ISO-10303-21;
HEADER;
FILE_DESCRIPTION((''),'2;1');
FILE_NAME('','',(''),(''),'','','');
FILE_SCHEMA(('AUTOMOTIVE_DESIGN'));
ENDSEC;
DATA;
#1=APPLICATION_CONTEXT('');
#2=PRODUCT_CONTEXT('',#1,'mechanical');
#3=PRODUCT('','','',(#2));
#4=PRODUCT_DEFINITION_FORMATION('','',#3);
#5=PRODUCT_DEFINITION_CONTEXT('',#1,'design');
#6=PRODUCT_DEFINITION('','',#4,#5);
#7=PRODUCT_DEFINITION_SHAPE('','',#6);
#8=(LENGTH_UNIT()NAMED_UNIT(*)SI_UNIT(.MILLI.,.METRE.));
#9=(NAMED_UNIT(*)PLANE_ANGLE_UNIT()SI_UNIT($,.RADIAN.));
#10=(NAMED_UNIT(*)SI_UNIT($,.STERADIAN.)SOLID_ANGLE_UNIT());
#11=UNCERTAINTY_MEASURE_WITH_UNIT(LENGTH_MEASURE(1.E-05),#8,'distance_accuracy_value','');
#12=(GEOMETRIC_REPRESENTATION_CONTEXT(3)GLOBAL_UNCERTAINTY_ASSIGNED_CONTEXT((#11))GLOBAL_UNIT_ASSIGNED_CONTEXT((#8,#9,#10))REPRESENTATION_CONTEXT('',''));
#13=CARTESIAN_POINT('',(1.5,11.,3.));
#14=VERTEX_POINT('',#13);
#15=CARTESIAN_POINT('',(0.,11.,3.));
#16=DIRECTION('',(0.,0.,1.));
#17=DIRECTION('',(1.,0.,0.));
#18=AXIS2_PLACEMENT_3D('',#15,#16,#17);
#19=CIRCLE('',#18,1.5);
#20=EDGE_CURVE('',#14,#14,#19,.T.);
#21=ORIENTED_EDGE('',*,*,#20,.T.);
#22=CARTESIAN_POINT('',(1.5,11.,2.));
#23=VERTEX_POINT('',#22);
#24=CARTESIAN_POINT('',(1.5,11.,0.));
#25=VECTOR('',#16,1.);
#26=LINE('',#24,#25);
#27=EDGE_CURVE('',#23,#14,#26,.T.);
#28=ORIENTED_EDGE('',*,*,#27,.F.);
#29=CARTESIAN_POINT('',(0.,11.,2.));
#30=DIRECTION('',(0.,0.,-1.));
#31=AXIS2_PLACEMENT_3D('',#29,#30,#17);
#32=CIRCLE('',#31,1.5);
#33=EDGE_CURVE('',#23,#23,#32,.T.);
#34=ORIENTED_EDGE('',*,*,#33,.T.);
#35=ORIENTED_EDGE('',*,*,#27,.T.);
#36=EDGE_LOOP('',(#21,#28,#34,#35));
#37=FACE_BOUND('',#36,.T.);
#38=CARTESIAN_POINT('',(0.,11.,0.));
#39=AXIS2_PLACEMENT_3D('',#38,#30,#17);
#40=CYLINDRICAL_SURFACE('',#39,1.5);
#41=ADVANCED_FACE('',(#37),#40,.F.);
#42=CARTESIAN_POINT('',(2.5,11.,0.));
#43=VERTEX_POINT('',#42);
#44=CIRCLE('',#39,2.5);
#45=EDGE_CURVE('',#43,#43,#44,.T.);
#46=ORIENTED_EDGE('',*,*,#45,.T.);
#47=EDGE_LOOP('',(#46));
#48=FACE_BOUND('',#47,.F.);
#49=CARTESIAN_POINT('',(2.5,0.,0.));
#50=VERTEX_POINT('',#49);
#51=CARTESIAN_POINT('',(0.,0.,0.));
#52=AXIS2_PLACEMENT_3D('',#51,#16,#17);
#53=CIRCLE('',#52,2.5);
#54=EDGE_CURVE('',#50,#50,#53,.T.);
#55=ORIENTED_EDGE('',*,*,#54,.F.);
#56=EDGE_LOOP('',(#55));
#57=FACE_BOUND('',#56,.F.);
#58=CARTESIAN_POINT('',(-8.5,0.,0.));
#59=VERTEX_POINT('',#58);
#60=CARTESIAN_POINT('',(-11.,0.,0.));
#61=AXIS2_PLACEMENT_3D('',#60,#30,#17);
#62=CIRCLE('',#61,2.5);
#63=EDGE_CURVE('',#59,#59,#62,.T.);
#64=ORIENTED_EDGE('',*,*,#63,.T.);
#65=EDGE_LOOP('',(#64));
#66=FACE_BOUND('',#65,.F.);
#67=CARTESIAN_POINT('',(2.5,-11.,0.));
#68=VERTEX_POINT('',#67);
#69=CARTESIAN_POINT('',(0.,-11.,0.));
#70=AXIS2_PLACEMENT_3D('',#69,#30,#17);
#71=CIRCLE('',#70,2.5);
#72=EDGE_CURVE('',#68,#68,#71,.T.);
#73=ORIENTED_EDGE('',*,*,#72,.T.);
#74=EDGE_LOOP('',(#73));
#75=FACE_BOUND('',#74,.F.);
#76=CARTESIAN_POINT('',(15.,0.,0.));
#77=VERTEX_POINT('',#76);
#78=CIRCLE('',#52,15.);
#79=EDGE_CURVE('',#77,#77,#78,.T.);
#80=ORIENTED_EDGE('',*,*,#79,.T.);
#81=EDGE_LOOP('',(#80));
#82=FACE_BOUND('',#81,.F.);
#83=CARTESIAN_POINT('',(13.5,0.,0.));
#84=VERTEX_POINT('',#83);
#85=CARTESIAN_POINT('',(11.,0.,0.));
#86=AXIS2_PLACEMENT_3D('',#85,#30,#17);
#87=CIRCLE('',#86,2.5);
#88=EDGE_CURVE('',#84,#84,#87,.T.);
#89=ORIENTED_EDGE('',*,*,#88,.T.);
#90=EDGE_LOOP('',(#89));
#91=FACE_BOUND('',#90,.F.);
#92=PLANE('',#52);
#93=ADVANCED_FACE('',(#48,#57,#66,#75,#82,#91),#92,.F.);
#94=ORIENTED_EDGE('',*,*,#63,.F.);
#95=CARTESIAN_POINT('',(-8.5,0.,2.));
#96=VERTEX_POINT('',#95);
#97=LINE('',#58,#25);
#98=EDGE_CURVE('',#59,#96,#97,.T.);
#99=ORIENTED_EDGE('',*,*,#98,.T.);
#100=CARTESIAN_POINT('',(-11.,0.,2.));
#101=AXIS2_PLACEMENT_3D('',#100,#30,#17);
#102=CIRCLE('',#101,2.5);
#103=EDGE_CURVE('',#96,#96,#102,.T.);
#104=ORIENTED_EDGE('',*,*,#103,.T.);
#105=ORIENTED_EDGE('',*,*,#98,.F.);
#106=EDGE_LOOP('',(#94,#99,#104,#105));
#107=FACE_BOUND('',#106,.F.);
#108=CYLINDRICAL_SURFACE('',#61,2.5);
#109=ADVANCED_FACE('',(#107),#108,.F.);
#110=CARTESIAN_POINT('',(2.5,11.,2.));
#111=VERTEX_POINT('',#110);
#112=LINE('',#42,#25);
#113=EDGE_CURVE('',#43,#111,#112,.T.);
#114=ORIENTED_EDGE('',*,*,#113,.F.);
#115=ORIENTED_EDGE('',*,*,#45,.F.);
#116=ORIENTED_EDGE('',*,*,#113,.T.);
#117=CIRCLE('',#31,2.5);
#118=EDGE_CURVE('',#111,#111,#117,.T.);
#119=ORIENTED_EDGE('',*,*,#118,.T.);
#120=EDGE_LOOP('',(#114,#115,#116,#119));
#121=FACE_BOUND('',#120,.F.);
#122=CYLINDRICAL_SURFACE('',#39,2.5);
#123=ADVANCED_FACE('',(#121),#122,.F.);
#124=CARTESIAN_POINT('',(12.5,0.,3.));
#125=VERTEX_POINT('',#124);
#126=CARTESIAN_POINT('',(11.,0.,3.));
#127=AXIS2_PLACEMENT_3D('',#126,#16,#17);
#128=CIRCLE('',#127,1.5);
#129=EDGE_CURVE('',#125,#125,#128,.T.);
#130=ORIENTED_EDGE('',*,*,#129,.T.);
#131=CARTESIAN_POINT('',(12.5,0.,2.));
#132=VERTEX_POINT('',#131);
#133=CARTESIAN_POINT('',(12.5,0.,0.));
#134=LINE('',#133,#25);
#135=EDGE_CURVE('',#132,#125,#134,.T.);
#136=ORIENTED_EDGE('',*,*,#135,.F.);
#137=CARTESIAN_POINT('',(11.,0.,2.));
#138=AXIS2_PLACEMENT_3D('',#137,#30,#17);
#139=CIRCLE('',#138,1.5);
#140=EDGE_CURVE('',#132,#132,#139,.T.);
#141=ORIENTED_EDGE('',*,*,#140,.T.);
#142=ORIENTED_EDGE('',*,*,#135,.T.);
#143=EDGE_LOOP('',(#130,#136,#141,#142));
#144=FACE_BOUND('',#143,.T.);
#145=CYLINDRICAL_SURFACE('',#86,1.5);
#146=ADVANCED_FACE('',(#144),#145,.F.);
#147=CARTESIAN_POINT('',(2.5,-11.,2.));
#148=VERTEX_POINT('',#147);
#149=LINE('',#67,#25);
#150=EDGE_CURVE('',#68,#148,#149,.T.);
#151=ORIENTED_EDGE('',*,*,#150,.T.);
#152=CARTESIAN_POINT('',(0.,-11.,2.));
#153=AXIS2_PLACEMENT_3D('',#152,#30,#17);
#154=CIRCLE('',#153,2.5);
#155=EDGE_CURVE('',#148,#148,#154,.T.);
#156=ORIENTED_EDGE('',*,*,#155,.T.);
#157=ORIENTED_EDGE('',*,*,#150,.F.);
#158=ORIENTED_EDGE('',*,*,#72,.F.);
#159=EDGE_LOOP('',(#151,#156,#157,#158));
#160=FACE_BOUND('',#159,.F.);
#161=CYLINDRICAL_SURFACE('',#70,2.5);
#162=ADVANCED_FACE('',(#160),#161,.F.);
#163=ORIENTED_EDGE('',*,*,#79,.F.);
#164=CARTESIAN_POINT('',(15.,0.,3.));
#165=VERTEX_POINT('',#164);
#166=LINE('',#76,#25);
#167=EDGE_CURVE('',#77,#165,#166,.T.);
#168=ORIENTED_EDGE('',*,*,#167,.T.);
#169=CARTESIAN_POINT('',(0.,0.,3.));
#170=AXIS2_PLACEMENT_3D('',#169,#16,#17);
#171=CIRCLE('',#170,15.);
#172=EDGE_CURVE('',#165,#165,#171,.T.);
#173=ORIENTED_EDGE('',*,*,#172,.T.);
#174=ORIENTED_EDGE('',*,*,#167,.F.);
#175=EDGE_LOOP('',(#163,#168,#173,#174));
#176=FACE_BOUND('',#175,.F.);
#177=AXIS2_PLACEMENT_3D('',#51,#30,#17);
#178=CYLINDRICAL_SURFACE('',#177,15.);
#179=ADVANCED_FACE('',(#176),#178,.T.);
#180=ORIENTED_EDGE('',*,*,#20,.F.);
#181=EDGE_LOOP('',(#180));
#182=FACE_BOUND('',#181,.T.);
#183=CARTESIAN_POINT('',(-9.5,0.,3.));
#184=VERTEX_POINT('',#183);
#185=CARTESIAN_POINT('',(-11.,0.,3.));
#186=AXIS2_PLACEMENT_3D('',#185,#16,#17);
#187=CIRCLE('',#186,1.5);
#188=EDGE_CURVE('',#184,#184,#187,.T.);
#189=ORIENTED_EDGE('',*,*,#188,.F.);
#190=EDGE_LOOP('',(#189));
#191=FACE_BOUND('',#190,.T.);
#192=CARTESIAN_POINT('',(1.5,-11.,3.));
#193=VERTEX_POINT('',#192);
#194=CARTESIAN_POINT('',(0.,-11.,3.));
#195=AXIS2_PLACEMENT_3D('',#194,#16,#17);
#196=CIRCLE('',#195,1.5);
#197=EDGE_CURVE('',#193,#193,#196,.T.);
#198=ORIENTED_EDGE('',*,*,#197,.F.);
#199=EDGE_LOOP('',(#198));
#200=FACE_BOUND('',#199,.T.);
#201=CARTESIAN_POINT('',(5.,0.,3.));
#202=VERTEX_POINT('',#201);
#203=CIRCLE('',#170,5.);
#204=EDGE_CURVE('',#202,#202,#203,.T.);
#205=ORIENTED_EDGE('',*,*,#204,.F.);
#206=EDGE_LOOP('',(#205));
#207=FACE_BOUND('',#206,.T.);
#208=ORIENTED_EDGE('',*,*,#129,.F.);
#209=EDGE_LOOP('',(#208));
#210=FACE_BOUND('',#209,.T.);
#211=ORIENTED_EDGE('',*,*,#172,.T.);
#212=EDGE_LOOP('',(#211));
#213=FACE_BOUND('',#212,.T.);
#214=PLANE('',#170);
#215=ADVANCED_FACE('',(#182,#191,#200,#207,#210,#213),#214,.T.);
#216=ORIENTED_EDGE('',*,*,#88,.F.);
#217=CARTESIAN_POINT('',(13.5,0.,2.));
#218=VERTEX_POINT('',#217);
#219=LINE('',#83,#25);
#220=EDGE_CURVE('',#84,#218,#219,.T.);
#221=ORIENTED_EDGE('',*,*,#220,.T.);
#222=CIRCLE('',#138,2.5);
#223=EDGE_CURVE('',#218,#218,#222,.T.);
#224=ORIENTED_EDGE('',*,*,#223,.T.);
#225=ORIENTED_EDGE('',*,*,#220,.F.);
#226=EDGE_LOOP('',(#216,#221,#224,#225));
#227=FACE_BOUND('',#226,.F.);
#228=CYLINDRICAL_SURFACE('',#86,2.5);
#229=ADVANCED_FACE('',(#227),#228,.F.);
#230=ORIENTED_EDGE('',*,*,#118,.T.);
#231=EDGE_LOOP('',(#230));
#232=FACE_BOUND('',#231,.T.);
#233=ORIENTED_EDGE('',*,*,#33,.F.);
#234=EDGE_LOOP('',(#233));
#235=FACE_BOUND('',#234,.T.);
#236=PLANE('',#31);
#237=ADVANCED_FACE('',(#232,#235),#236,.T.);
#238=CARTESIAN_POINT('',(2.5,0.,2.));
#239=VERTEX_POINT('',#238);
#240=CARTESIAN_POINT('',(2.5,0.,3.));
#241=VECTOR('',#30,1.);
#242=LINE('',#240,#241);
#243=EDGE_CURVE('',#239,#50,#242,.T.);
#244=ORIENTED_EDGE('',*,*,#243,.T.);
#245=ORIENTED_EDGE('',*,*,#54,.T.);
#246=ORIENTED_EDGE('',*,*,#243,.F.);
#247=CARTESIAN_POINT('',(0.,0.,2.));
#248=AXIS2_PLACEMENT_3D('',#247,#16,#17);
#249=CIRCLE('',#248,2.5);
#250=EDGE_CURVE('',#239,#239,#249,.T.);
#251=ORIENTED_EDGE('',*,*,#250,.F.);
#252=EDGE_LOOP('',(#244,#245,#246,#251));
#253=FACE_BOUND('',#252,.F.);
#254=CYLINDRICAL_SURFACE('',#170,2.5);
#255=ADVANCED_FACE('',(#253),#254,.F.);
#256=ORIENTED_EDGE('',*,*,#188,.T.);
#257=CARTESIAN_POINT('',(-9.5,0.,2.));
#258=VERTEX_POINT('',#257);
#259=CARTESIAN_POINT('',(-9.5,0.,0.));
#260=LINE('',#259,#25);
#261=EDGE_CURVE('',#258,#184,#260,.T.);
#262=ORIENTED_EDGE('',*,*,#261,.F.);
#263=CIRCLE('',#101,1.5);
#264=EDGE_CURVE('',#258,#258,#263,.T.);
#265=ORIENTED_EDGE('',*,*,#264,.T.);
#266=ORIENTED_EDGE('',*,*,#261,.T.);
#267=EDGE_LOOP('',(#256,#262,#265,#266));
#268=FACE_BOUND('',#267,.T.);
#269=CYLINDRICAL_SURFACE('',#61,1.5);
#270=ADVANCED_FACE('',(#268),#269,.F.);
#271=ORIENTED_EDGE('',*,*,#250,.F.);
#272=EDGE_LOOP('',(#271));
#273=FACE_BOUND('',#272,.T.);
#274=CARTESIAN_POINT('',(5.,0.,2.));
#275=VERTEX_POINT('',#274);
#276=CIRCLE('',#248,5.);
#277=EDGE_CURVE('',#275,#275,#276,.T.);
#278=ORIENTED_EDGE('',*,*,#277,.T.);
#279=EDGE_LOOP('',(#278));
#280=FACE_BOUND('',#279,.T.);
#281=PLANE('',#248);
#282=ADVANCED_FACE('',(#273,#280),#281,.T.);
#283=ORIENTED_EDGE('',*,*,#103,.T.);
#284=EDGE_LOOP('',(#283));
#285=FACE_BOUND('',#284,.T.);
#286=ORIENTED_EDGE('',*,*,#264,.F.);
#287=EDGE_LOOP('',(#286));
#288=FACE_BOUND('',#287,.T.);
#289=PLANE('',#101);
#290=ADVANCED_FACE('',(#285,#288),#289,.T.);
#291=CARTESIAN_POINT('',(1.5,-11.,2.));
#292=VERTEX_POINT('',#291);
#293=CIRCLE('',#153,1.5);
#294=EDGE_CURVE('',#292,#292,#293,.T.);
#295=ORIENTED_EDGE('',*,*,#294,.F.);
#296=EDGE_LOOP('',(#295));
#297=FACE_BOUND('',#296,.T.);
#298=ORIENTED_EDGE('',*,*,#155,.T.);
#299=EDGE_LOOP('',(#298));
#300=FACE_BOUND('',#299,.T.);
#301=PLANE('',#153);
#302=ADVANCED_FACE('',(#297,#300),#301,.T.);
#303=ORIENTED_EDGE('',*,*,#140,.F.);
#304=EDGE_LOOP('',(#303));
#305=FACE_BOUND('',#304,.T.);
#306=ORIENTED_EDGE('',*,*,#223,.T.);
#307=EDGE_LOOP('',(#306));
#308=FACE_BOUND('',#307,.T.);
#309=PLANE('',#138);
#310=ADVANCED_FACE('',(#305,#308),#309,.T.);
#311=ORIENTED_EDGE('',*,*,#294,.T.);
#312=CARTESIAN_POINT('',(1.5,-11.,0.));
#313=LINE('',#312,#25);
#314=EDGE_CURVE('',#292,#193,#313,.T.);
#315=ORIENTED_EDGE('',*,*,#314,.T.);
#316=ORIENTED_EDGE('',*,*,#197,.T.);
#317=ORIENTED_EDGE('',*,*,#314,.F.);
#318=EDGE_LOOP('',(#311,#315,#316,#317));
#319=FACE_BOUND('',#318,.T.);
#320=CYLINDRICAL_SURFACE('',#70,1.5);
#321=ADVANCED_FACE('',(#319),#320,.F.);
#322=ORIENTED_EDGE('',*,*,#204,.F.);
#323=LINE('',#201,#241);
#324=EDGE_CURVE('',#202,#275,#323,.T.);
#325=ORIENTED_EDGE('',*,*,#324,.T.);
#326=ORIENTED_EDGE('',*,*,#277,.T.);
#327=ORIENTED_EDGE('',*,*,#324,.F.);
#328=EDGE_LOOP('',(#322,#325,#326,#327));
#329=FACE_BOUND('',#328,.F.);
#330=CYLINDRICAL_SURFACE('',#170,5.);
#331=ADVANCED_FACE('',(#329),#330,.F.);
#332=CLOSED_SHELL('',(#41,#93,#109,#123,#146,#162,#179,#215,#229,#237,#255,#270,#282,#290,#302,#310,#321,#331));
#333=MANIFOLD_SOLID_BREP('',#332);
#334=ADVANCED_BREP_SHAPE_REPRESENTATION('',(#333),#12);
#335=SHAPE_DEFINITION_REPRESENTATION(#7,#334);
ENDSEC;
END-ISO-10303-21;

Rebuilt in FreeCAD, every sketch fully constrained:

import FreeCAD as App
import Part
import Sketcher
from FreeCAD import Vector

doc = App.newDocument("Part")
params = doc.addObject("Spreadsheet::Sheet", "Params")
for row, (alias, value) in enumerate([
    ("sketch1_diameter", "30 mm"),
    ("sketch1_diameter2", "3 mm"),
    ("pad1_length", "3 mm"),
    ("sketch2_diameter", "5 mm"),
    ("pocket1_length", "9 mm"),
    ("sketch3_diameter", "10 mm"),
    ("pocket2_length", "1 mm"),
    ("sketch4_diameter", "5 mm"),
    ("pocket3_length", "2 mm"),
], start=1):
    params.set(f"A{row}", alias)
    params.set(f"B{row}", "=" + value)
    params.setAlias(f"B{row}", alias)

body = doc.addObject("PartDesign::Body", "Body")

# Sketch on XY plane
sketch1 = body.newObject("Sketcher::SketchObject", "Sketch")
sketch1.AttachmentSupport = (doc.getObject("XY_Plane"), [""])
sketch1.MapMode = "FlatFace"
sketch1.addGeometry([
    Part.Circle(Vector(0, 0, 0), Vector(0, 0, 1), 15),  # 0
    Part.Circle(Vector(0, -11, 0), Vector(0, 0, 1), 1.5),  # 1
    Part.Circle(Vector(-11, 0, 0), Vector(0, 0, 1), 1.5),  # 2
    Part.Circle(Vector(11, 0, 0), Vector(0, 0, 1), 1.5),  # 3
    Part.Circle(Vector(0, 11, 0), Vector(0, 0, 1), 1.5),  # 4
], False)
sketch1.addConstraint([
    Sketcher.Constraint("Coincident", 0, 3, -1, 1),
    Sketcher.Constraint("Equal", 1, 2),
    Sketcher.Constraint("Equal", 2, 3),
    Sketcher.Constraint("Equal", 3, 4),
    Sketcher.Constraint("Symmetric", 2, 3, 3, 3, -1, 1),
    Sketcher.Constraint("Symmetric", 1, 3, 4, 3, -1, 1),
    Sketcher.Constraint("PointOnObject", 1, 3, -2),
    Sketcher.Constraint("PointOnObject", 2, 3, -1),
    Sketcher.Constraint("Diameter", 0, 30.0),
    Sketcher.Constraint("Diameter", 1, 3.0),
    Sketcher.Constraint("DistanceY", 1, 3, -1, 1, 11.0),
    Sketcher.Constraint("DistanceX", 2, 3, -1, 1, 11.0),
])
sketch1.setExpression("Constraints[8]", "Params.sketch1_diameter")
sketch1.setExpression("Constraints[9]", "Params.sketch1_diameter2")
pad1 = body.newObject("PartDesign::Pad", "Pad")
pad1.Profile = sketch1
pad1.setExpression("Length", "Params.pad1_length")

# Sketch on XY plane
sketch2 = body.newObject("Sketcher::SketchObject", "Sketch001")
sketch2.AttachmentSupport = (doc.getObject("XY_Plane"), [""])
sketch2.MapMode = "FlatFace"
sketch2.AttachmentOffset = App.Placement(Vector(0, 0, 3), App.Rotation())
sketch2.addGeometry(Part.Circle(Vector(0, 0, 0), Vector(0, 0, 1), 2.5), False)
sketch2.addConstraint([
    Sketcher.Constraint("Coincident", 0, 3, -1, 1),
    Sketcher.Constraint("Diameter", 0, 5.0),
])
sketch2.setExpression("Constraints[1]", "Params.sketch2_diameter")
pocket1 = body.newObject("PartDesign::Pocket", "Pocket")
pocket1.Profile = sketch2
pocket1.setExpression("Length", "Params.pocket1_length")

# Sketch on XY plane
sketch3 = body.newObject("Sketcher::SketchObject", "Sketch002")
sketch3.AttachmentSupport = (doc.getObject("XY_Plane"), [""])
sketch3.MapMode = "FlatFace"
sketch3.AttachmentOffset = App.Placement(Vector(0, 0, 3), App.Rotation())
sketch3.addGeometry(Part.Circle(Vector(0, 0, 0), Vector(0, 0, 1), 5), False)
sketch3.addConstraint([
    Sketcher.Constraint("Coincident", 0, 3, -1, 1),
    Sketcher.Constraint("Diameter", 0, 10.0),
])
sketch3.setExpression("Constraints[1]", "Params.sketch3_diameter")
pocket2 = body.newObject("PartDesign::Pocket", "Pocket001")
pocket2.Profile = sketch3
pocket2.setExpression("Length", "Params.pocket2_length")

# Sketch on XY plane
sketch4 = body.newObject("Sketcher::SketchObject", "Sketch003")
sketch4.AttachmentSupport = (doc.getObject("XY_Plane"), [""])
sketch4.MapMode = "FlatFace"
sketch4.addGeometry([
    Part.Circle(Vector(0, -11, 0), Vector(0, 0, 1), 2.5),
    Part.Circle(Vector(11, 0, 0), Vector(0, 0, 1), 2.5),
    Part.Circle(Vector(0, 11, 0), Vector(0, 0, 1), 2.5),
    Part.Circle(Vector(-11, 0, 0), Vector(0, 0, 1), 2.5),
], False)
sketch4.addConstraint([
    Sketcher.Constraint("Equal", 0, 1),
    Sketcher.Constraint("Equal", 1, 2),
    Sketcher.Constraint("Equal", 2, 3),
    Sketcher.Constraint("Symmetric", 0, 3, 2, 3, -1, 1),
    Sketcher.Constraint("Symmetric", 1, 3, 3, 3, -1, 1),
    Sketcher.Constraint("PointOnObject", 0, 3, -2),
    Sketcher.Constraint("PointOnObject", 1, 3, -1),
    Sketcher.Constraint("Diameter", 0, 5.0),
    Sketcher.Constraint("DistanceY", 0, 3, -1, 1, 11.0),
    Sketcher.Constraint("DistanceX", -1, 1, 1, 3, 11.0),
])
sketch4.setExpression("Constraints[7]", "Params.sketch4_diameter")
pocket3 = body.newObject("PartDesign::Pocket", "Pocket002")
pocket3.Profile = sketch4
pocket3.setExpression("Length", "Params.pocket3_length")
pocket3.Reversed = True

doc.recompute()
